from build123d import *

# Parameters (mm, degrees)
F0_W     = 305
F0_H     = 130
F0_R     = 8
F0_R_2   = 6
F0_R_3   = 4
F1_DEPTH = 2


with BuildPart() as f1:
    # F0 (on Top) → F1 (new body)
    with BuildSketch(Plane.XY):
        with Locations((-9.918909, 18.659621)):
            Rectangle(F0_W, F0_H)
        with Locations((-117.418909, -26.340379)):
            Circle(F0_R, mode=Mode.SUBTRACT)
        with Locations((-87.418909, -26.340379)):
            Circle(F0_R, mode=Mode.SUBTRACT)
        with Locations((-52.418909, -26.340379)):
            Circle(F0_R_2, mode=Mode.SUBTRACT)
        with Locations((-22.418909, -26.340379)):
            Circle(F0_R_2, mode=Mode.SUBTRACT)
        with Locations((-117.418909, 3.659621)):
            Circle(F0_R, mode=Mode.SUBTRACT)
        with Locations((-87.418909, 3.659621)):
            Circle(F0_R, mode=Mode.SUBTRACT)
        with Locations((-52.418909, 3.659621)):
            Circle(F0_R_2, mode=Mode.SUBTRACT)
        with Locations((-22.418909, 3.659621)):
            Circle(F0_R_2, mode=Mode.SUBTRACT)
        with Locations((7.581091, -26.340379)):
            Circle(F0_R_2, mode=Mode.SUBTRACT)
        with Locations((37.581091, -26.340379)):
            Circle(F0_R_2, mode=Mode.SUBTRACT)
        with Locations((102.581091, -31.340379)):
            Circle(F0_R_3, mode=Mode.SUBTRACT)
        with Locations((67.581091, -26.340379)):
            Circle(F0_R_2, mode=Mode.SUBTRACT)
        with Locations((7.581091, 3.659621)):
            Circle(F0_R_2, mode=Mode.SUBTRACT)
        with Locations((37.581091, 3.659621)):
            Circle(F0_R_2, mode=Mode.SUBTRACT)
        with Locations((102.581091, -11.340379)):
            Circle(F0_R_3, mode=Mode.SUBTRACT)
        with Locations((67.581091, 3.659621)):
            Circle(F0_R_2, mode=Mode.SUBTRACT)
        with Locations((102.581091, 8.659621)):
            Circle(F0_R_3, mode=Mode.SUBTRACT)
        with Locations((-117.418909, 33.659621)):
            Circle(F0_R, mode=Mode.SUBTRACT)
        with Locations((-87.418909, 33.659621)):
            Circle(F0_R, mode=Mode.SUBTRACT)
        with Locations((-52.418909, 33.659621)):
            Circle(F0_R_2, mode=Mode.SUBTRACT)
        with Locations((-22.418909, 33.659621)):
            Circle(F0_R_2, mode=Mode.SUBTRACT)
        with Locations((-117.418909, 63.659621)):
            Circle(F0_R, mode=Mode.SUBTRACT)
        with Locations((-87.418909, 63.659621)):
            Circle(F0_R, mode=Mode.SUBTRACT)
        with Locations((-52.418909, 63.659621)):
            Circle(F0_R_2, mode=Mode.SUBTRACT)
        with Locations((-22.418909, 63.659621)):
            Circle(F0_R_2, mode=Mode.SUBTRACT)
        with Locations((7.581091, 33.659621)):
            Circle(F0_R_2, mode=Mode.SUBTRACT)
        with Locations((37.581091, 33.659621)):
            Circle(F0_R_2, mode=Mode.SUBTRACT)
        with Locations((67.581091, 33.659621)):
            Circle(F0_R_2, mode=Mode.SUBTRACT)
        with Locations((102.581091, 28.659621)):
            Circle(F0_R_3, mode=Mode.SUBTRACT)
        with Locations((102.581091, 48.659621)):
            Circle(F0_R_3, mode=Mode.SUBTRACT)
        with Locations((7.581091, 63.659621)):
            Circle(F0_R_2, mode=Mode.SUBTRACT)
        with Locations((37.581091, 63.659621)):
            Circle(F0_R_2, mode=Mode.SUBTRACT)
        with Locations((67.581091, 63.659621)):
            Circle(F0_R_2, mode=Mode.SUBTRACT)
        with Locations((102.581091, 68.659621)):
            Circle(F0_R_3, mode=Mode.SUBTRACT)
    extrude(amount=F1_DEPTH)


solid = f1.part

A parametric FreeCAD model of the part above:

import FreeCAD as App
import Part
import Sketcher

V = App.Vector


def add_polygon(sketch, points):
    """Adds a closed chain of lines whose ends are joined by coincident constraints."""
    first, n = sketch.GeometryCount, len(points)
    for a, b in zip(points, points[1:] + points[:1]):
        sketch.addGeometry(Part.LineSegment(App.Vector(*a, 0), App.Vector(*b, 0)), False)
    for i in range(n):
        sketch.addConstraint(Sketcher.Constraint("Coincident", first + i, 2, first + (i + 1) % n, 1))

doc = App.newDocument("Part")
params = doc.addObject("Spreadsheet::Sheet", "Params")
for row, (alias, value) in enumerate([
    ("sketch1_diameter", "16 mm"),
    ("sketch1_diameter2", "12 mm"),
    ("sketch1_diameter3", "8 mm"),
    ("sketch1_width", "305 mm"),
    ("sketch1_height", "130 mm"),
    ("pad1_length", "2 mm"),
], start=1):
    params.set(f"A{row}", alias)
    params.set(f"B{row}", "=" + value)
    params.setAlias(f"B{row}", alias)

body = doc.addObject("PartDesign::Body", "Body")

# Sketch on XY plane
sketch1 = body.newObject("Sketcher::SketchObject", "Sketch")
sketch1.AttachmentSupport = (doc.getObject("XY_Plane"), [""])
sketch1.MapMode = "FlatFace"
add_polygon(sketch1, [(-162.4, 83.7), (-162.4, -46.3), (142.6, -46.3), (142.6, 83.7)])  # lines 0-3
sketch1.addGeometry(Part.Circle(V(-117.4, -26.3, 0), V(0, 0, 1), 8), False)  # 4
sketch1.addGeometry(Part.Circle(V(-87.4, -26.3, 0), V(0, 0, 1), 8), False)  # 5
sketch1.addGeometry(Part.Circle(V(-52.4, -26.3, 0), V(0, 0, 1), 6), False)  # 6
sketch1.addGeometry(Part.Circle(V(-22.4, -26.3, 0), V(0, 0, 1), 6), False)  # 7
sketch1.addGeometry(Part.Circle(V(-117.4, 3.7, 0), V(0, 0, 1), 8), False)  # 8
sketch1.addGeometry(Part.Circle(V(-87.4, 3.7, 0), V(0, 0, 1), 8), False)  # 9
sketch1.addGeometry(Part.Circle(V(-52.4, 3.7, 0), V(0, 0, 1), 6), False)  # 10
sketch1.addGeometry(Part.Circle(V(-22.4, 3.7, 0), V(0, 0, 1), 6), False)  # 11
sketch1.addGeometry(Part.Circle(V(7.6, -26.3, 0), V(0, 0, 1), 6), False)  # 12
sketch1.addGeometry(Part.Circle(V(37.6, -26.3, 0), V(0, 0, 1), 6), False)  # 13
sketch1.addGeometry(Part.Circle(V(67.6, -26.3, 0), V(0, 0, 1), 6), False)  # 14
sketch1.addGeometry(Part.Circle(V(102.6, -31.3, 0), V(0, 0, 1), 4), False)  # 15
sketch1.addGeometry(Part.Circle(V(102.6, -11.3, 0), V(0, 0, 1), 4), False)  # 16
sketch1.addGeometry(Part.Circle(V(7.6, 3.7, 0), V(0, 0, 1), 6), False)  # 17
sketch1.addGeometry(Part.Circle(V(37.6, 3.7, 0), V(0, 0, 1), 6), False)  # 18
sketch1.addGeometry(Part.Circle(V(67.6, 3.7, 0), V(0, 0, 1), 6), False)  # 19
sketch1.addGeometry(Part.Circle(V(102.6, 8.7, 0), V(0, 0, 1), 4), False)  # 20
sketch1.addGeometry(Part.Circle(V(-117.4, 33.7, 0), V(0, 0, 1), 8), False)  # 21
sketch1.addGeometry(Part.Circle(V(-87.4, 33.7, 0), V(0, 0, 1), 8), False)  # 22
sketch1.addGeometry(Part.Circle(V(-52.4, 33.7, 0), V(0, 0, 1), 6), False)  # 23
sketch1.addGeometry(Part.Circle(V(-22.4, 33.7, 0), V(0, 0, 1), 6), False)  # 24
sketch1.addGeometry(Part.Circle(V(-117.4, 63.7, 0), V(0, 0, 1), 8), False)  # 25
sketch1.addGeometry(Part.Circle(V(-87.4, 63.7, 0), V(0, 0, 1), 8), False)  # 26
sketch1.addGeometry(Part.Circle(V(-52.4, 63.7, 0), V(0, 0, 1), 6), False)  # 27
sketch1.addGeometry(Part.Circle(V(-22.4, 63.7, 0), V(0, 0, 1), 6), False)  # 28
sketch1.addGeometry(Part.Circle(V(7.6, 33.7, 0), V(0, 0, 1), 6), False)  # 29
sketch1.addGeometry(Part.Circle(V(37.6, 33.7, 0), V(0, 0, 1), 6), False)  # 30
sketch1.addGeometry(Part.Circle(V(102.6, 28.7, 0), V(0, 0, 1), 4), False)  # 31
sketch1.addGeometry(Part.Circle(V(67.6, 33.7, 0), V(0, 0, 1), 6), False)  # 32
sketch1.addGeometry(Part.Circle(V(7.6, 63.7, 0), V(0, 0, 1), 6), False)  # 33
sketch1.addGeometry(Part.Circle(V(37.6, 63.7, 0), V(0, 0, 1), 6), False)  # 34
sketch1.addGeometry(Part.Circle(V(102.6, 48.7, 0), V(0, 0, 1), 4), False)  # 35
sketch1.addGeometry(Part.Circle(V(67.6, 63.7, 0), V(0, 0, 1), 6), False)  # 36
sketch1.addGeometry(Part.Circle(V(102.6, 68.7, 0), V(0, 0, 1), 4), False)  # 37
sketch1.addConstraint([
    Sketcher.Constraint("Vertical", 0),
    Sketcher.Constraint("Horizontal", 1),
    Sketcher.Constraint("Vertical", 2),
    Sketcher.Constraint("Horizontal", 3),
    Sketcher.Constraint("Equal", 4, 5),
    Sketcher.Constraint("Equal", 6, 7),
    Sketcher.Constraint("Equal", 5, 8),
    Sketcher.Constraint("Equal", 8, 9),
    Sketcher.Constraint("Equal", 7, 10),
    Sketcher.Constraint("Equal", 10, 11),
    Sketcher.Constraint("Equal", 11, 12),
    Sketcher.Constraint("Equal", 12, 13),
    Sketcher.Constraint("Equal", 13, 14),
    Sketcher.Constraint("Equal", 15, 16),
    Sketcher.Constraint("Equal", 14, 17),
    Sketcher.Constraint("Equal", 17, 18),
    Sketcher.Constraint("Equal", 18, 19),
    Sketcher.Constraint("Equal", 16, 20),
    Sketcher.Constraint("Equal", 9, 21),
    Sketcher.Constraint("Equal", 21, 22),
    Sketcher.Constraint("Equal", 19, 23),
    Sketcher.Constraint("Equal", 23, 24),
    Sketcher.Constraint("Equal", 22, 25),
    Sketcher.Constraint("Equal", 25, 26),
    Sketcher.Constraint("Equal", 24, 27),
    Sketcher.Constraint("Equal", 27, 28),
    Sketcher.Constraint("Equal", 28, 29),
    Sketcher.Constraint("Equal", 29, 30),
    Sketcher.Constraint("Equal", 20, 31),
    Sketcher.Constraint("Equal", 30, 32),
    Sketcher.Constraint("Equal", 32, 33),
    Sketcher.Constraint("Equal", 33, 34),
    Sketcher.Constraint("Equal", 31, 35),
    Sketcher.Constraint("Equal", 34, 36),
    Sketcher.Constraint("Equal", 35, 37),
    Sketcher.Constraint("Horizontal", 4, 3, 5, 3),
    Sketcher.Constraint("Horizontal", 5, 3, 6, 3),
    Sketcher.Constraint("Horizontal", 6, 3, 7, 3),
    Sketcher.Constraint("Horizontal", 8, 3, 9, 3),
    Sketcher.Constraint("Horizontal", 9, 3, 10, 3),
    Sketcher.Constraint("Horizontal", 10, 3, 11, 3),
    Sketcher.Constraint("Horizontal", 7, 3, 12, 3),
    Sketcher.Constraint("Horizontal", 12, 3, 13, 3),
    Sketcher.Constraint("Horizontal", 13, 3, 14, 3),
    Sketcher.Constraint("Horizontal", 11, 3, 17, 3),
    Sketcher.Constraint("Horizontal", 17, 3, 18, 3),
    Sketcher.Constraint("Horizontal", 18, 3, 19, 3),
    Sketcher.Constraint("Horizontal", 21, 3, 22, 3),
    Sketcher.Constraint("Horizontal", 22, 3, 23, 3),
    Sketcher.Constraint("Horizontal", 23, 3, 24, 3),
    Sketcher.Constraint("Horizontal", 25, 3, 26, 3),
    Sketcher.Constraint("Horizontal", 26, 3, 27, 3),
    Sketcher.Constraint("Horizontal", 27, 3, 28, 3),
    Sketcher.Constraint("Horizontal", 24, 3, 29, 3),
    Sketcher.Constraint("Horizontal", 29, 3, 30, 3),
    Sketcher.Constraint("Horizontal", 30, 3, 32, 3),
    Sketcher.Constraint("Horizontal", 28, 3, 33, 3),
    Sketcher.Constraint("Horizontal", 33, 3, 34, 3),
    Sketcher.Constraint("Horizontal", 34, 3, 36, 3),
    Sketcher.Constraint("Vertical", 4, 3, 8, 3),
    Sketcher.Constraint("Vertical", 5, 3, 9, 3),
    Sketcher.Constraint("Vertical", 6, 3, 10, 3),
    Sketcher.Constraint("Vertical", 7, 3, 11, 3),
    Sketcher.Constraint("Vertical", 15, 3, 16, 3),
    Sketcher.Constraint("Vertical", 12, 3, 17, 3),
    Sketcher.Constraint("Vertical", 13, 3, 18, 3),
    Sketcher.Constraint("Vertical", 14, 3, 19, 3),
    Sketcher.Constraint("Vertical", 16, 3, 20, 3),
    Sketcher.Constraint("Vertical", 8, 3, 21, 3),
    Sketcher.Constraint("Vertical", 9, 3, 22, 3),
    Sketcher.Constraint("Vertical", 10, 3, 23, 3),
    Sketcher.Constraint("Vertical", 11, 3, 24, 3),
    Sketcher.Constraint("Vertical", 21, 3, 25, 3),
    Sketcher.Constraint("Vertical", 22, 3, 26, 3),
    Sketcher.Constraint("Vertical", 23, 3, 27, 3),
    Sketcher.Constraint("Vertical", 24, 3, 28, 3),
    Sketcher.Constraint("Vertical", 17, 3, 29, 3),
    Sketcher.Constraint("Vertical", 18, 3, 30, 3),
    Sketcher.Constraint("Vertical", 20, 3, 31, 3),
    Sketcher.Constraint("Vertical", 19, 3, 32, 3),
    Sketcher.Constraint("Vertical", 29, 3, 33, 3),
    Sketcher.Constraint("Vertical", 30, 3, 34, 3),
    Sketcher.Constraint("Vertical", 31, 3, 35, 3),
    Sketcher.Constraint("Vertical", 32, 3, 36, 3),
    Sketcher.Constraint("Vertical", 35, 3, 37, 3),
    Sketcher.Constraint("Diameter", 4, 16.0),
    Sketcher.Constraint("Diameter", 6, 12.0),
    Sketcher.Constraint("Diameter", 15, 8.0),
    Sketcher.Constraint("DistanceX", 1, 1, 1, 2, 305.0),
    Sketcher.Constraint("DistanceY", 0, 2, 0, 1, 130.0),
    Sketcher.Constraint("DistanceX", 4, 3, 5, 3, 30.0),
    Sketcher.Constraint("DistanceX", 5, 3, 6, 3, 35.0),
    Sketcher.Constraint("DistanceX", 6, 3, 7, 3, 30.0),
    Sketcher.Constraint("DistanceY", 4, 3, 8, 3, 30.0),
    Sketcher.Constraint("DistanceX", 7, 3, 12, 3, 30.0),
    Sketcher.Constraint("DistanceX", 12, 3, 13, 3, 30.0),
    Sketcher.Constraint("DistanceX", 13, 3, 14, 3, 30.0),
    Sketcher.Constraint("DistanceX", 14, 3, 15, 3, 35.0),
    Sketcher.Constraint("DistanceY", 15, 3, 14, 3, 5.0),
    Sketcher.Constraint("DistanceY", 15, 3, 16, 3, 20.0),
    Sketcher.Constraint("DistanceY", 16, 3, 20, 3, 20.0),
    Sketcher.Constraint("DistanceY", 8, 3, 21, 3, 30.0),
    Sketcher.Constraint("DistanceY", 21, 3, 25, 3, 30.0),
    Sketcher.Constraint("DistanceY", 20, 3, 31, 3, 20.0),
    Sketcher.Constraint("DistanceY", 31, 3, 35, 3, 20.0),
    Sketcher.Constraint("DistanceY", 35, 3, 37, 3, 20.0),
    Sketcher.Constraint("DistanceX", 0, 2, 4, 3, 45.0),
    Sketcher.Constraint("DistanceY", 0, 2, 4, 3, 20.0),
    Sketcher.Constraint("DistanceX", 4, 3, -1, 1, 117.418909),
    Sketcher.Constraint("DistanceY", 4, 3, -1, 1, 26.340379),
])
sketch1.setExpression("Constraints[89]", "Params.sketch1_diameter")
sketch1.setExpression("Constraints[90]", "Params.sketch1_diameter2")
sketch1.setExpression("Constraints[91]", "Params.sketch1_diameter3")
sketch1.setExpression("Constraints[92]", "Params.sketch1_width")
sketch1.setExpression("Constraints[93]", "Params.sketch1_height")
pad1 = body.newObject("PartDesign::Pad", "Pad")
pad1.Profile = sketch1
pad1.setExpression("Length", "Params.pad1_length")

doc.recompute()
